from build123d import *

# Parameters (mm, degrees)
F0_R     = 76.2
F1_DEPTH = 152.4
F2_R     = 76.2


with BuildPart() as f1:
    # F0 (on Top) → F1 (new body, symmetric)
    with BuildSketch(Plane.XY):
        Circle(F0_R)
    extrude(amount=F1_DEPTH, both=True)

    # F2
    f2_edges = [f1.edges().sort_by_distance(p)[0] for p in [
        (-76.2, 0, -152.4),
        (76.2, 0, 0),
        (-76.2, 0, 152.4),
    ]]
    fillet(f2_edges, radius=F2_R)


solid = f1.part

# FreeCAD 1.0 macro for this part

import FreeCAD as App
import Part
import Sketcher
from FreeCAD import Vector
Q = App.Units.Quantity

doc = App.newDocument("Part")
body = doc.addObject("PartDesign::Body", "Body")

sketch1 = body.newObject("Sketcher::SketchObject", "Sketch")
sketch1.AttachmentSupport = (doc.getObject("XY_Plane"), [""])
sketch1.MapMode = "FlatFace"
sketch1.addGeometry(Part.Circle(Vector(0, 0, 0), Vector(0, 0, 1), 76.2), False)
sketch1.addConstraint([
    Sketcher.Constraint("Coincident", 0, 3, -1, 1),
    Sketcher.Constraint("Diameter", 0, Q("6 in")),
])
pad1 = body.newObject("PartDesign::Pad", "Pad")
pad1.Profile = sketch1
pad1.Length = Q("12 in")
pad1.Midplane = True
doc.recompute()

fillet = body.newObject("PartDesign::Fillet", "Fillet")
fillet.Base = (pad1, ["Edge1"])
fillet.UseAllEdges = True
fillet.Radius = Q("3 in")

doc.recompute()
